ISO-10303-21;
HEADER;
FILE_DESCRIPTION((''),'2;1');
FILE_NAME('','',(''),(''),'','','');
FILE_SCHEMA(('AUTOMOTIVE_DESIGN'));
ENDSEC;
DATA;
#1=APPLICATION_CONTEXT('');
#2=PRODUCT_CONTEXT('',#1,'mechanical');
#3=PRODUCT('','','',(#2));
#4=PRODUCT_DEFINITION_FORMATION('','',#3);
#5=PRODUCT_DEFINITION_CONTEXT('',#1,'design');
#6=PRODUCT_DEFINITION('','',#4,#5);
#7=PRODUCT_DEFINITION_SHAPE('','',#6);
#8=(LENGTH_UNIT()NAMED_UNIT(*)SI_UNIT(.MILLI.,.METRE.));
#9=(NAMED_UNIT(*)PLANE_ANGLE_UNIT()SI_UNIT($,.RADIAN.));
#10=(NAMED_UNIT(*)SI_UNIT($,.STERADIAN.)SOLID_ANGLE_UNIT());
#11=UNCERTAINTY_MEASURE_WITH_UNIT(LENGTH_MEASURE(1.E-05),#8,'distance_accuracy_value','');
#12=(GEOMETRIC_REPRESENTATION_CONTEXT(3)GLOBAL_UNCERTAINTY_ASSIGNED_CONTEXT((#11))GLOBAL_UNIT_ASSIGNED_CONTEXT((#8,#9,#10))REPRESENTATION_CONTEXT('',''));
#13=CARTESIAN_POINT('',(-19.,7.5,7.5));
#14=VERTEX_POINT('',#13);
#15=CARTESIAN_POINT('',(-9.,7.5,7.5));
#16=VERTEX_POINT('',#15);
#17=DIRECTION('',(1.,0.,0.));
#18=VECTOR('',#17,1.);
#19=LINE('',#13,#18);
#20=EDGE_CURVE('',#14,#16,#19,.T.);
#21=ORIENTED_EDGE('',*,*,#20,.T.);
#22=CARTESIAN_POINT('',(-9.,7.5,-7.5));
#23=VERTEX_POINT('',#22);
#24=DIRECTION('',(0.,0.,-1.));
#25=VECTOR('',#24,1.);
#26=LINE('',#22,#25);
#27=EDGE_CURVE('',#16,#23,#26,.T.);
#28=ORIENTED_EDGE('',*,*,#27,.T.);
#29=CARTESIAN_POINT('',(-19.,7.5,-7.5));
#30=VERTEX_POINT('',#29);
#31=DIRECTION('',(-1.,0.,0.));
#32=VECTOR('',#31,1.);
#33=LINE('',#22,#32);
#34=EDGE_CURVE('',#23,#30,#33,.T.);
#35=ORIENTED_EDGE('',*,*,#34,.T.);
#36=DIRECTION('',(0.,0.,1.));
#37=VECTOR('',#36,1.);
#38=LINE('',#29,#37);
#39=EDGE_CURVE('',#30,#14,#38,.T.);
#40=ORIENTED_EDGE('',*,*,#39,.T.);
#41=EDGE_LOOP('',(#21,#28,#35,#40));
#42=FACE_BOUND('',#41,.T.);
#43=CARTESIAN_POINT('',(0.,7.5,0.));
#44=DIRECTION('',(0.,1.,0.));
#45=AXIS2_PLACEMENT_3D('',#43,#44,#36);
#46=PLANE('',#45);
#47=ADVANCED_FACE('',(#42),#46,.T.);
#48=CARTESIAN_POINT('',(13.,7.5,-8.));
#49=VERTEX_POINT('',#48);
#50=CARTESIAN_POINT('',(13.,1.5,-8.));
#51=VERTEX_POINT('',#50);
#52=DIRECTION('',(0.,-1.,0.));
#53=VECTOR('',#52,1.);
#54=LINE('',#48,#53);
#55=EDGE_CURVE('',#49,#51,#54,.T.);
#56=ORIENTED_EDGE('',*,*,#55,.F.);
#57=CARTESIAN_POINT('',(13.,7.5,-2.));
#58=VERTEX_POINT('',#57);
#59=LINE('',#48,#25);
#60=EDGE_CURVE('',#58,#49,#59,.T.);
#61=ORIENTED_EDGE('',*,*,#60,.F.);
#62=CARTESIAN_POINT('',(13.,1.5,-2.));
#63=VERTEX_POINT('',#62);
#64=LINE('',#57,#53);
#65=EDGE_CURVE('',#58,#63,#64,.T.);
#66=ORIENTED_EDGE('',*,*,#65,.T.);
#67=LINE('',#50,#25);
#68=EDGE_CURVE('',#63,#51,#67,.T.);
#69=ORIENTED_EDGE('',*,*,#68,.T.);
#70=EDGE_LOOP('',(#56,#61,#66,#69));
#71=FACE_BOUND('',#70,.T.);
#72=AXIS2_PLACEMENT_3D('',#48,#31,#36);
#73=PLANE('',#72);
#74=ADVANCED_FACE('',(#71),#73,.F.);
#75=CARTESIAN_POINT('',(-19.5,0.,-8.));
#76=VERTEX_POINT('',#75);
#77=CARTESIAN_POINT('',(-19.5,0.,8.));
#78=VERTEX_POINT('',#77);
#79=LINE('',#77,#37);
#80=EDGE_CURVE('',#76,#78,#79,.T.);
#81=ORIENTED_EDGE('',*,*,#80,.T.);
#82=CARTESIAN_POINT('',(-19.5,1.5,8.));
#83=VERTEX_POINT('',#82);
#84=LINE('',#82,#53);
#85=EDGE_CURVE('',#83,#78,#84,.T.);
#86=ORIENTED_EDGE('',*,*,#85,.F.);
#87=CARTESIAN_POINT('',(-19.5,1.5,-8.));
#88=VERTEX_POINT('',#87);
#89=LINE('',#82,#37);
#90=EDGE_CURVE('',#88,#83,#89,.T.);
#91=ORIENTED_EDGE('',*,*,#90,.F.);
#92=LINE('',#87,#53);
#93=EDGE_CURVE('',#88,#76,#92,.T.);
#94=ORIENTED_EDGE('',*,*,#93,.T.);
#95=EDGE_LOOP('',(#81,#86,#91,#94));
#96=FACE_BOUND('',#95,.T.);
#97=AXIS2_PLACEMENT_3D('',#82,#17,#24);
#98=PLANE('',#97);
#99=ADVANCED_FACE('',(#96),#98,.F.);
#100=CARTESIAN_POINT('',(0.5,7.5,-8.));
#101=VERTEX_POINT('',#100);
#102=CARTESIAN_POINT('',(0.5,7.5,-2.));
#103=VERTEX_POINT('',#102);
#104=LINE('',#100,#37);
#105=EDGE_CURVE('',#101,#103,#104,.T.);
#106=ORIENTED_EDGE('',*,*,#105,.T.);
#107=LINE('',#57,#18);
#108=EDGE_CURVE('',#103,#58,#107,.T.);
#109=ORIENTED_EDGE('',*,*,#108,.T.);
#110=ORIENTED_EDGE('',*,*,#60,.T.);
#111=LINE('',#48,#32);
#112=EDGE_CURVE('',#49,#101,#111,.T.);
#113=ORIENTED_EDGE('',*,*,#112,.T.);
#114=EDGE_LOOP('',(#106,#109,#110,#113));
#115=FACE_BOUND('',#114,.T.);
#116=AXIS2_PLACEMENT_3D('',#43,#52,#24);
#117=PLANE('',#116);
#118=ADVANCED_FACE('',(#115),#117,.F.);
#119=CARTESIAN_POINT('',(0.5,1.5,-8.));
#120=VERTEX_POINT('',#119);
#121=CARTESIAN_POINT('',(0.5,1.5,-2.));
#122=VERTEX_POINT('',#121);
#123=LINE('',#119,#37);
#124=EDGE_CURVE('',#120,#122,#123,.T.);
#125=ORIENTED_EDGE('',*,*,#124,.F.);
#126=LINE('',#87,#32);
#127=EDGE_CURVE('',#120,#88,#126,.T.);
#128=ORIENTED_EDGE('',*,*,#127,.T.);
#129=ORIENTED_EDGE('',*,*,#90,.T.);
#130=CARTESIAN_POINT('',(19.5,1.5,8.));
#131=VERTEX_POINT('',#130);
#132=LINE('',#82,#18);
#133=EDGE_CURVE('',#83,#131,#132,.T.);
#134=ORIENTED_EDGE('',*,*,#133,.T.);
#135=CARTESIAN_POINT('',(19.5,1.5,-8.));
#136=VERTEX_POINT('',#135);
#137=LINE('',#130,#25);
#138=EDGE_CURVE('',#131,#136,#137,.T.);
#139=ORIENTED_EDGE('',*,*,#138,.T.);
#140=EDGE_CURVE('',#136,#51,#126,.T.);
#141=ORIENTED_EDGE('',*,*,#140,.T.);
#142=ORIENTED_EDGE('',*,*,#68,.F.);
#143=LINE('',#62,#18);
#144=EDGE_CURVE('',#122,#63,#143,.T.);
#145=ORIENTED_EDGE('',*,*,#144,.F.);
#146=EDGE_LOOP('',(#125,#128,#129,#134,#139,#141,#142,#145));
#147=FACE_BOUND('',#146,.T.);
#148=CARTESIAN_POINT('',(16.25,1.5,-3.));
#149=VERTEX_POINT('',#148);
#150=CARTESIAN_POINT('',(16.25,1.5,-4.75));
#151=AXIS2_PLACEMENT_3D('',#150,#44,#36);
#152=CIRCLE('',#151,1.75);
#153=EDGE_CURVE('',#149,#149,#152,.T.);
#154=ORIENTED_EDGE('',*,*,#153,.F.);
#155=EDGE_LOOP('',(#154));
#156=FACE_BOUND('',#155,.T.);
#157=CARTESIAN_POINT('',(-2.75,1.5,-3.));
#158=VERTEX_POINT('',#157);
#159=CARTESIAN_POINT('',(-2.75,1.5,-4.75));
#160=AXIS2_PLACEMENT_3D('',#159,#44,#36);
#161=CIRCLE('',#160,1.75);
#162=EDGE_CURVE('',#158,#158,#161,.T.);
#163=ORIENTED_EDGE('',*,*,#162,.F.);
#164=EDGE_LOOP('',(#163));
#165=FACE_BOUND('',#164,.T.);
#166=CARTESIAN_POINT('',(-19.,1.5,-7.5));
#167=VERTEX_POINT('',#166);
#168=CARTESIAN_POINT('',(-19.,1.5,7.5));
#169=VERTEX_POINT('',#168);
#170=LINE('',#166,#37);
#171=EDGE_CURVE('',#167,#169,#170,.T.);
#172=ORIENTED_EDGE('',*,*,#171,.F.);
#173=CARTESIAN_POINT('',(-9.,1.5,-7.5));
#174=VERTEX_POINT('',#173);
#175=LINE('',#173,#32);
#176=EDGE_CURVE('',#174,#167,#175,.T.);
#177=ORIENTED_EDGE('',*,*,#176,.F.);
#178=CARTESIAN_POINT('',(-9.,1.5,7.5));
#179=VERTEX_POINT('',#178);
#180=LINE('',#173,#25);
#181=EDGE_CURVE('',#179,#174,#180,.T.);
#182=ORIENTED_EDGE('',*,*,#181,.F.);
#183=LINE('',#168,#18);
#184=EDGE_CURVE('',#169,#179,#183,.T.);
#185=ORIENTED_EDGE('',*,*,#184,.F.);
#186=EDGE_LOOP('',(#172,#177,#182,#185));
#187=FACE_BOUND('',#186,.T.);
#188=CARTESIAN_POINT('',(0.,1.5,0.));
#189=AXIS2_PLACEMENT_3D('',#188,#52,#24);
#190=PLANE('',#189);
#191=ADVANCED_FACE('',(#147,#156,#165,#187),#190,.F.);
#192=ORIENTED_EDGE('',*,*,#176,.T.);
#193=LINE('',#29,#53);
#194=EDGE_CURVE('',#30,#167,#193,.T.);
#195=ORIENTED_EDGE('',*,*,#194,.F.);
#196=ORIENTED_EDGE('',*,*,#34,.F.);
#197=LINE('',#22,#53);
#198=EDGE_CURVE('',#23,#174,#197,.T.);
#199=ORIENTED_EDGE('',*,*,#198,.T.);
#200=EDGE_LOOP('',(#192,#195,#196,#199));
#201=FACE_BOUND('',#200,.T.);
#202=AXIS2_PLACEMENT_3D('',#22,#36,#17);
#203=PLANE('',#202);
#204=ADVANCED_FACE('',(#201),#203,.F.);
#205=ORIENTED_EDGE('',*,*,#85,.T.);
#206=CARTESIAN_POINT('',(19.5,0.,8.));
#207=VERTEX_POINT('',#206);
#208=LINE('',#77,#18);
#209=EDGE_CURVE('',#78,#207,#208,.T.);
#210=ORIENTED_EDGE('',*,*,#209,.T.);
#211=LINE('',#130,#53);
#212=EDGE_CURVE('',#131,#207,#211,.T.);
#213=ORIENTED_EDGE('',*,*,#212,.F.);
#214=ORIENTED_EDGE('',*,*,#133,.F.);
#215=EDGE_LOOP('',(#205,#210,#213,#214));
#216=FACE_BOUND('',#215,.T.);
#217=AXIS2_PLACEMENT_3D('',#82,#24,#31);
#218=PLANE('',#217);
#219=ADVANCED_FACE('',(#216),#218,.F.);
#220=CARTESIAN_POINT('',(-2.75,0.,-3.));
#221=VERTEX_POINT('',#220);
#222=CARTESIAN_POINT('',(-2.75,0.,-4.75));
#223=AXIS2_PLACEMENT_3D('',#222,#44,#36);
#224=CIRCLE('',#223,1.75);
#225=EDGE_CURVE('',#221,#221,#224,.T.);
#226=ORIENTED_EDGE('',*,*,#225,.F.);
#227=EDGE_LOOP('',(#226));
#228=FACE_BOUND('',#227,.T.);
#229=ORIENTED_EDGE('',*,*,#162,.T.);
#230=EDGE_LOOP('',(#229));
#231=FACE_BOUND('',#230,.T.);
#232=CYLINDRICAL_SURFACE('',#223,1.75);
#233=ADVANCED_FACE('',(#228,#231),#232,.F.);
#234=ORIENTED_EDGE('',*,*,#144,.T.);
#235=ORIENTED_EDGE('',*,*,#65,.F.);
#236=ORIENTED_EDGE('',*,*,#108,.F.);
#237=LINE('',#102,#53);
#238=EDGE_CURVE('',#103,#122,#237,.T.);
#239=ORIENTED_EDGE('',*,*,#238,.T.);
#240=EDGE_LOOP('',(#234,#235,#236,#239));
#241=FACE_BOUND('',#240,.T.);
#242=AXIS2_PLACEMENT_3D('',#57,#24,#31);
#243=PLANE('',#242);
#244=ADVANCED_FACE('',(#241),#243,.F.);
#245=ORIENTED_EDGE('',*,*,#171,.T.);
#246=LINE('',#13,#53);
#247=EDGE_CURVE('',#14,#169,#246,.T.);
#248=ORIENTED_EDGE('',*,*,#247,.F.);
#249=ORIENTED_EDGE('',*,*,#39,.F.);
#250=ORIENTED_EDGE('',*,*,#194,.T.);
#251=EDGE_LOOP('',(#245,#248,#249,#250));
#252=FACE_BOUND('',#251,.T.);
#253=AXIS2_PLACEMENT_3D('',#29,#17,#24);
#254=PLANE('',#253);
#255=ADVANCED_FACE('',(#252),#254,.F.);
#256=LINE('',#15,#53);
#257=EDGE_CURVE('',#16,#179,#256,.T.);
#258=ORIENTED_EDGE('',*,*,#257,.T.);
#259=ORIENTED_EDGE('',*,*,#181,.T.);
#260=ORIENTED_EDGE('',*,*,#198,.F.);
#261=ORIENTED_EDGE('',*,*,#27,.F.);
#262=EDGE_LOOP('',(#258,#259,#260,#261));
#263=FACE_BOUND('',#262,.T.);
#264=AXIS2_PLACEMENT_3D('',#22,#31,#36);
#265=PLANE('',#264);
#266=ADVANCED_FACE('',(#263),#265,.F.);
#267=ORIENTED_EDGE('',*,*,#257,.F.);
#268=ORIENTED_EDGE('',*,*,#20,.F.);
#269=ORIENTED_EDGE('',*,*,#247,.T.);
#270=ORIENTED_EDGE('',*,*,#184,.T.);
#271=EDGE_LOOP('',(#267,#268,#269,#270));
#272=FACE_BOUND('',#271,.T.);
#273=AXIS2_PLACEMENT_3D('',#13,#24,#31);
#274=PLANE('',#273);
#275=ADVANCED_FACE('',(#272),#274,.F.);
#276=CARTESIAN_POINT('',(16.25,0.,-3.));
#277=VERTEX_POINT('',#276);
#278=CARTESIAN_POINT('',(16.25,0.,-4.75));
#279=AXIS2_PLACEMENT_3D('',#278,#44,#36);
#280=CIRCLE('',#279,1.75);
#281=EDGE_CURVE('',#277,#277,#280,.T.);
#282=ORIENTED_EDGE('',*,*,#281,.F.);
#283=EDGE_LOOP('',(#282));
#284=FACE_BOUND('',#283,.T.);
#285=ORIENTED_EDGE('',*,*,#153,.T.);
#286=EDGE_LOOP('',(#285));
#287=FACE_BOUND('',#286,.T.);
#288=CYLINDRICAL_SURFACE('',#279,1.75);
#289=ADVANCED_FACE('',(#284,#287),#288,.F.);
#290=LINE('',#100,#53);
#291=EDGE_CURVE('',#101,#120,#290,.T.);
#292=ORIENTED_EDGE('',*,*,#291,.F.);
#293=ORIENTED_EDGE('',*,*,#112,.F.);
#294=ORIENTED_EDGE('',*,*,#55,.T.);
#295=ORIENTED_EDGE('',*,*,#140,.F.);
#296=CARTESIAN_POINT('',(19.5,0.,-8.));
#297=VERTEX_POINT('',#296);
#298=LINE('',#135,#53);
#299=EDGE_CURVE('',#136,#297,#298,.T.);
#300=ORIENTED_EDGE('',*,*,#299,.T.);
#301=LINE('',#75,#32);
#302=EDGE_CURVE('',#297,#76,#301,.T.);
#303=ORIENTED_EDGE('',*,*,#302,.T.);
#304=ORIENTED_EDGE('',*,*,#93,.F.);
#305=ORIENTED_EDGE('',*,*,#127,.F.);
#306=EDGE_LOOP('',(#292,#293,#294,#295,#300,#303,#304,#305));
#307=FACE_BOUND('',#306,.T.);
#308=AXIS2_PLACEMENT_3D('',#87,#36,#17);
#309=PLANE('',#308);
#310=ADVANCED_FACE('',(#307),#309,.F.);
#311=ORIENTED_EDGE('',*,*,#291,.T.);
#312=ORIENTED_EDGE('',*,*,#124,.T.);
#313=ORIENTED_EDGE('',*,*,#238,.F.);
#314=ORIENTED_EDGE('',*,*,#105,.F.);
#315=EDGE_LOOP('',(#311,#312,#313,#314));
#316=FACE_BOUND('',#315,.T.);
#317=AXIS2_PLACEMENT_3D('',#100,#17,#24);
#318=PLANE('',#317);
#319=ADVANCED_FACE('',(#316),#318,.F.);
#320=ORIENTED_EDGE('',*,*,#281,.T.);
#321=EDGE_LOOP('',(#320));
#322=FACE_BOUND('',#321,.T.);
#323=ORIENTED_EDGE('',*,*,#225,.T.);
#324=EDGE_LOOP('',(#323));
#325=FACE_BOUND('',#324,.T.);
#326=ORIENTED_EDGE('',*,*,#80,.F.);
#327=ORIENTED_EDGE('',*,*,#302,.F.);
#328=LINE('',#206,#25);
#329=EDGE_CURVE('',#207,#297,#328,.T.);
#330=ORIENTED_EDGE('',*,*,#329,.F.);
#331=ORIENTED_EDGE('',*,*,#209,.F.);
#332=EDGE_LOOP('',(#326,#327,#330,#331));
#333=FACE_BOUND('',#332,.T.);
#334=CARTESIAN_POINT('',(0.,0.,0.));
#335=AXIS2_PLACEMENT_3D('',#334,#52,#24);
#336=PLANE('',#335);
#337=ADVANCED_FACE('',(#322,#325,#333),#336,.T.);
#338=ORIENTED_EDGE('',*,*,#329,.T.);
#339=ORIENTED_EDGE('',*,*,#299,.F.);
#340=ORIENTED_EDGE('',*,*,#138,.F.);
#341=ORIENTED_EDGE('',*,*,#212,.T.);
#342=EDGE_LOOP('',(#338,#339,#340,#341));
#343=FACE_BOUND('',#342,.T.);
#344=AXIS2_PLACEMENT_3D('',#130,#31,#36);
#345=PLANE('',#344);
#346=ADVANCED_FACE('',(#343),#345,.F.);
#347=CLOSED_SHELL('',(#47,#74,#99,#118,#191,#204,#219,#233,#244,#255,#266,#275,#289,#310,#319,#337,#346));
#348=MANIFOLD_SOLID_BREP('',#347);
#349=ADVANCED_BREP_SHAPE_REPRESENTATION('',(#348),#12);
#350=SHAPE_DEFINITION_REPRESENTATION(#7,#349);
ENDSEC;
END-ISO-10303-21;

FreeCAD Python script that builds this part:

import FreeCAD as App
import Part
import Sketcher

V = App.Vector
Q = App.Units.Quantity

doc = App.newDocument("Part")
body = doc.addObject("PartDesign::Body", "Body")

sketch1 = body.newObject("Sketcher::SketchObject", "Sketch")
sketch1.AttachmentSupport = (doc.getObject("XZ_Plane"), [""])
sketch1.MapMode = "FlatFace"
sketch1.addGeometry(Part.LineSegment(V(-19.5, -8, 0), V(-19.5, 8, 0)), False)
sketch1.addGeometry(Part.LineSegment(V(-19.5, 8, 0), V(19.5, 8, 0)), False)
sketch1.addGeometry(Part.LineSegment(V(19.5, 8, 0), V(19.5, -8, 0)), False)
sketch1.addGeometry(Part.LineSegment(V(19.5, -8, 0), V(-19.5, -8, 0)), False)
sketch1.addConstraint(Sketcher.Constraint("Coincident", 0, 2, 1, 1))
sketch1.addConstraint(Sketcher.Constraint("Coincident", 1, 2, 2, 1))
sketch1.addConstraint(Sketcher.Constraint("Coincident", 2, 2, 3, 1))
sketch1.addConstraint(Sketcher.Constraint("Coincident", 3, 2, 0, 1))
sketch1.addConstraint(Sketcher.Constraint("Vertical", 0))
sketch1.addConstraint(Sketcher.Constraint("Horizontal", 1))
sketch1.addConstraint(Sketcher.Constraint("Vertical", 2))
sketch1.addConstraint(Sketcher.Constraint("Horizontal", 3))
sketch1.addConstraint(Sketcher.Constraint("Symmetric", 0, 2, 2, 2, -1, 1))
sketch1.addConstraint(Sketcher.Constraint("DistanceX", 1, 1, 1, 2, Q("39 mm")))
sketch1.addConstraint(Sketcher.Constraint("DistanceY", 0, 1, 0, 2, Q("16 mm")))
pad1 = body.newObject("PartDesign::Pad", "Pad")
pad1.Profile = sketch1
pad1.Length = 1.5
pad1.Reversed = True

sketch2 = body.newObject("Sketcher::SketchObject", "Sketch001")
sketch2.AttachmentSupport = (doc.getObject("XZ_Plane"), [""])
sketch2.MapMode = "FlatFace"
sketch2.AttachmentOffset = App.Placement(V(0, 0, -1.5), App.Rotation())
sketch2.addGeometry(Part.Circle(V(16.25, -4.75, 0), V(0, 0, 1), 1.75), False)
sketch2.addGeometry(Part.Circle(V(-2.75, -4.75, 0), V(0, 0, 1), 1.75), False)
sketch2.addConstraint(Sketcher.Constraint("Equal", 0, 1))
sketch2.addConstraint(Sketcher.Constraint("Horizontal", 0, 3, 1, 3))
sketch2.addConstraint(Sketcher.Constraint("Diameter", 0, Q("3.5 mm")))
sketch2.addConstraint(Sketcher.Constraint("DistanceX", 1, 3, 0, 3, Q("19 mm")))
sketch2.addConstraint(Sketcher.Constraint("DistanceX", -1, 1, 0, 3, Q("16.25 mm")))
sketch2.addConstraint(Sketcher.Constraint("DistanceY", 0, 3, -1, 1, Q("4.75 mm")))
pocket1 = body.newObject("PartDesign::Pocket", "Pocket")
pocket1.Profile = sketch2
pocket1.Length = 1.5
pocket1.Reversed = True

sketch3 = body.newObject("Sketcher::SketchObject", "Sketch002")
sketch3.AttachmentSupport = (doc.getObject("XZ_Plane"), [""])
sketch3.MapMode = "FlatFace"
sketch3.AttachmentOffset = App.Placement(V(0, 0, -1.5), App.Rotation())
sketch3.addGeometry(Part.LineSegment(V(0.5, -8, 0), V(0.5, -2, 0)), False)
sketch3.addGeometry(Part.LineSegment(V(0.5, -2, 0), V(13, -2, 0)), False)
sketch3.addGeometry(Part.LineSegment(V(13, -2, 0), V(13, -8, 0)), False)
sketch3.addGeometry(Part.LineSegment(V(13, -8, 0), V(0.5, -8, 0)), False)
sketch3.addConstraint(Sketcher.Constraint("Coincident", 0, 2, 1, 1))
sketch3.addConstraint(Sketcher.Constraint("Coincident", 1, 2, 2, 1))
sketch3.addConstraint(Sketcher.Constraint("Coincident", 2, 2, 3, 1))
sketch3.addConstraint(Sketcher.Constraint("Coincident", 3, 2, 0, 1))
sketch3.addConstraint(Sketcher.Constraint("Vertical", 0))
sketch3.addConstraint(Sketcher.Constraint("Horizontal", 1))
sketch3.addConstraint(Sketcher.Constraint("Vertical", 2))
sketch3.addConstraint(Sketcher.Constraint("Horizontal", 3))
sketch3.addConstraint(Sketcher.Constraint("DistanceY", 0, 1, 0, 2, Q("6 mm")))
sketch3.addConstraint(Sketcher.Constraint("DistanceX", 1, 1, 1, 2, Q("12.5 mm")))
sketch3.addConstraint(Sketcher.Constraint("DistanceY", 0, 2, -1, 1, Q("2 mm")))
sketch3.addConstraint(Sketcher.Constraint("DistanceX", -1, 1, 1, 2, Q("13 mm")))
pad2 = body.newObject("PartDesign::Pad", "Pad001")
pad2.Profile = sketch3
pad2.Length = 6
pad2.Reversed = True

sketch4 = body.newObject("Sketcher::SketchObject", "Sketch003")
sketch4.AttachmentSupport = (doc.getObject("XZ_Plane"), [""])
sketch4.MapMode = "FlatFace"
sketch4.AttachmentOffset = App.Placement(V(0, 0, -1.5), App.Rotation())
sketch4.addGeometry(Part.LineSegment(V(-19, -7.5, 0), V(-19, 7.5, 0)), False)
sketch4.addGeometry(Part.LineSegment(V(-19, 7.5, 0), V(-9, 7.5, 0)), False)
sketch4.addGeometry(Part.LineSegment(V(-9, 7.5, 0), V(-9, -7.5, 0)), False)
sketch4.addGeometry(Part.LineSegment(V(-9, -7.5, 0), V(-19, -7.5, 0)), False)
sketch4.addConstraint(Sketcher.Constraint("Coincident", 0, 2, 1, 1))
sketch4.addConstraint(Sketcher.Constraint("Coincident", 1, 2, 2, 1))
sketch4.addConstraint(Sketcher.Constraint("Coincident", 2, 2, 3, 1))
sketch4.addConstraint(Sketcher.Constraint("Coincident", 3, 2, 0, 1))
sketch4.addConstraint(Sketcher.Constraint("Vertical", 0))
sketch4.addConstraint(Sketcher.Constraint("Horizontal", 1))
sketch4.addConstraint(Sketcher.Constraint("Vertical", 2))
sketch4.addConstraint(Sketcher.Constraint("Horizontal", 3))
sketch4.addConstraint(Sketcher.Constraint("DistanceX", 1, 1, 1, 2, Q("10 mm")))
sketch4.addConstraint(Sketcher.Constraint("DistanceY", 0, 1, 0, 2, Q("15 mm")))
sketch4.addConstraint(Sketcher.Constraint("DistanceX", 0, 2, -1, 1, Q("19 mm")))
sketch4.addConstraint(Sketcher.Constraint("DistanceY", -1, 1, 0, 2, Q("7.5 mm")))
pad3 = body.newObject("PartDesign::Pad", "Pad002")
pad3.Profile = sketch4
pad3.Length = 6
pad3.Reversed = True

doc.recompute()
